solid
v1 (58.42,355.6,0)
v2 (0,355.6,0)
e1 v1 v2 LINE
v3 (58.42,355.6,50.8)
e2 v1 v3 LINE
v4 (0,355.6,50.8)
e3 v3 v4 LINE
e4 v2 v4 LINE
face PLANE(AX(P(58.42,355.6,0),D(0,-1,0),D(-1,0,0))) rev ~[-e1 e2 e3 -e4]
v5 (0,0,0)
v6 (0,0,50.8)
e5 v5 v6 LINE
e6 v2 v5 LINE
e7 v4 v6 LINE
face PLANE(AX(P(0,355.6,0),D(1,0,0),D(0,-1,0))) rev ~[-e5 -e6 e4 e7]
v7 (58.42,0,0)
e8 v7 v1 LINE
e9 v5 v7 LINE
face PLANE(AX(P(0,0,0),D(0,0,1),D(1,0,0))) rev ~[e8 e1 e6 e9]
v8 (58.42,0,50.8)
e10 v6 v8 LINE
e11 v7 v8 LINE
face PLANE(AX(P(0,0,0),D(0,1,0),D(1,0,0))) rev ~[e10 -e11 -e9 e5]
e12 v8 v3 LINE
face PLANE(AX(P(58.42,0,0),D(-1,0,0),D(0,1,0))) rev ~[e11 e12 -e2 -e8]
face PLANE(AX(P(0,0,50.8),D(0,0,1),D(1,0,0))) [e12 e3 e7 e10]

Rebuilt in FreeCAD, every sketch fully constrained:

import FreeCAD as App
import Part
import Sketcher
Q = App.Units.Quantity

doc = App.newDocument("Part")
params = doc.addObject("Spreadsheet::Sheet", "Params")
for row, (alias, value) in enumerate([
    ("sketch1_height", "14 in"),
    ("sketch1_width", "2.3 in"),
    ("pad1_length", "2 in"),
], start=1):
    params.set(f"A{row}", alias)
    params.set(f"B{row}", "=" + value)
    params.setAlias(f"B{row}", alias)

body = doc.addObject("PartDesign::Body", "Body")

# Sketch on XY plane
sketch1 = doc.addObject("Sketcher::SketchObject", "Sketch")
body.addObject(sketch1)
sketch1.AttachmentSupport = (doc.XY_Plane, [""])
sketch1.MapMode = "FlatFace"
sketch1.addGeometry([
    Part.LineSegment(App.Vector(0, 356, 0), App.Vector(0, 0, 0)),
    Part.LineSegment(App.Vector(0, 0, 0), App.Vector(58, 0, 0)),
    Part.LineSegment(App.Vector(58, 0, 0), App.Vector(58, 356, 0)),
    Part.LineSegment(App.Vector(58, 356, 0), App.Vector(0, 356, 0)),
], False)
sketch1.addConstraint([
    Sketcher.Constraint("Coincident", 0, 2, 1, 1),
    Sketcher.Constraint("Coincident", 1, 2, 2, 1),
    Sketcher.Constraint("Coincident", 2, 2, 3, 1),
    Sketcher.Constraint("Coincident", 3, 2, 0, 1),
    Sketcher.Constraint("Vertical", 0),
    Sketcher.Constraint("Horizontal", 1),
    Sketcher.Constraint("Vertical", 2),
    Sketcher.Constraint("Horizontal", 3),
    Sketcher.Constraint("Coincident", 0, 2, -1, 1),
    Sketcher.Constraint("DistanceY", 0, 2, 0, 1, Q("14 in")),
    Sketcher.Constraint("DistanceX", 1, 1, 1, 2, Q("2.3 in")),
])
sketch1.setExpression("Constraints[9]", "Params.sketch1_height")
sketch1.setExpression("Constraints[10]", "Params.sketch1_width")
pad1 = doc.addObject("PartDesign::Pad", "Pad")
body.addObject(pad1)
pad1.Profile = sketch1
pad1.setExpression("Length", "Params.pad1_length")

doc.recompute()
